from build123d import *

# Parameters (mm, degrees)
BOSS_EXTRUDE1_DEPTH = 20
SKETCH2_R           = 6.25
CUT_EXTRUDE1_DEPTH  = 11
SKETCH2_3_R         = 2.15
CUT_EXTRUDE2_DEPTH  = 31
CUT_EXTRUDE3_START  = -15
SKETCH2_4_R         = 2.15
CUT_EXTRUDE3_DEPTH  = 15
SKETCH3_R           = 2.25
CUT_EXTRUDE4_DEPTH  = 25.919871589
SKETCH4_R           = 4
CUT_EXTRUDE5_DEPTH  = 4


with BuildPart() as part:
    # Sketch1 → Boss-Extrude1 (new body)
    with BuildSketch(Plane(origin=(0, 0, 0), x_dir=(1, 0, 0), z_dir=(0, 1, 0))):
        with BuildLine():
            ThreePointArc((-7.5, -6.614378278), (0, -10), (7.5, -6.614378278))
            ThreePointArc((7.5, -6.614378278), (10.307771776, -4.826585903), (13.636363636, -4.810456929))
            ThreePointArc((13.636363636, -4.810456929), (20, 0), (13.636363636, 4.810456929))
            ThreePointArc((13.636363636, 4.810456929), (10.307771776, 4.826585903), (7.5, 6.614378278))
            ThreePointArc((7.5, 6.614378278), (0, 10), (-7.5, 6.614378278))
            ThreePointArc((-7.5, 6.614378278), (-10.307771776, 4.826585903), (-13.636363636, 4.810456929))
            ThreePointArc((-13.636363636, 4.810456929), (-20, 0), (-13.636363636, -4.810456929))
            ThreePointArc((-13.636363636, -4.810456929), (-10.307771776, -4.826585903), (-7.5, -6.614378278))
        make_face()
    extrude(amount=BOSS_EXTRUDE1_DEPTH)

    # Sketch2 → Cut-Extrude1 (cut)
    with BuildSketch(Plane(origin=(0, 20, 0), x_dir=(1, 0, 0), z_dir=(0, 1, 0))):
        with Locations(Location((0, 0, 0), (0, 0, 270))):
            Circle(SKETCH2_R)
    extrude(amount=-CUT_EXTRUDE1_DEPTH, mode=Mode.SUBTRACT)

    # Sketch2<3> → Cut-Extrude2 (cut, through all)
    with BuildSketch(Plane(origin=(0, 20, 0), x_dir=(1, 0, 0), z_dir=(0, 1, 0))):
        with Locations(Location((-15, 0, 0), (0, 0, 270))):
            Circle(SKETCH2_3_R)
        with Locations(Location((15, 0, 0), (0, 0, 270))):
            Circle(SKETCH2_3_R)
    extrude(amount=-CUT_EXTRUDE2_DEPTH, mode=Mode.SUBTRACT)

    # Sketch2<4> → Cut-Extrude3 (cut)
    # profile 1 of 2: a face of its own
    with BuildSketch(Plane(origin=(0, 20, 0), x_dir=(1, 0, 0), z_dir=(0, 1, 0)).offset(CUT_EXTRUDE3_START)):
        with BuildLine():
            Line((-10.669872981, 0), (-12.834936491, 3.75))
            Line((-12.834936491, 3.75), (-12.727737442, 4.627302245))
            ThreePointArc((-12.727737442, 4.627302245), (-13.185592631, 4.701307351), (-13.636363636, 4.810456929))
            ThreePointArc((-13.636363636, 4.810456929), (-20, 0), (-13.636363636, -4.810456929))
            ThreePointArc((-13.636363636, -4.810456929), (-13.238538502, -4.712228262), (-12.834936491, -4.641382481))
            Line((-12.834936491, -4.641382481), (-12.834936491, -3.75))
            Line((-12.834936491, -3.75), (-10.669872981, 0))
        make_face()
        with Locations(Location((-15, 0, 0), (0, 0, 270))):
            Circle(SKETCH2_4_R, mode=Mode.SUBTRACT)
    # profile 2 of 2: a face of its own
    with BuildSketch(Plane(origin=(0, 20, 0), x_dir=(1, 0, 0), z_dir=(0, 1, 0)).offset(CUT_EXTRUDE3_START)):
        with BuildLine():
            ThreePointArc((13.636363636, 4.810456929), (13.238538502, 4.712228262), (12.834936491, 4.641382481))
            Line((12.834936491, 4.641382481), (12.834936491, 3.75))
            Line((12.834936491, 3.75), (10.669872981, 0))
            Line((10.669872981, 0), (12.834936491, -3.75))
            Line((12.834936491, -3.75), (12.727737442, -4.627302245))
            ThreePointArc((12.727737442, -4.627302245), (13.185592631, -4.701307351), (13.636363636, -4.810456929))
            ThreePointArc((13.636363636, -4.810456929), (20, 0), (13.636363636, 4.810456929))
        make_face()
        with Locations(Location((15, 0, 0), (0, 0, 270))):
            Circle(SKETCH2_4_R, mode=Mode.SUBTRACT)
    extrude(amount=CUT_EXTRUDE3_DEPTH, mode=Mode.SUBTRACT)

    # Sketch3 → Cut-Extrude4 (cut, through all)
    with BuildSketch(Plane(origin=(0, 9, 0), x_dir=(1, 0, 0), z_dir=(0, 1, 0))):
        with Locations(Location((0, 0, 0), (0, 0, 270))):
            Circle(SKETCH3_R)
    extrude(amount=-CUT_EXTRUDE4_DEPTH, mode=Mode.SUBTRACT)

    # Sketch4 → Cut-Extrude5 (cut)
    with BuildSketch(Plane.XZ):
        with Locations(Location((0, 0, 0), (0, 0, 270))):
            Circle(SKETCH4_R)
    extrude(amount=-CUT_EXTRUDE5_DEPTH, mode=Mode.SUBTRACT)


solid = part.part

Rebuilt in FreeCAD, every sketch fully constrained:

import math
import FreeCAD as App
import Part
import Sketcher
from FreeCAD import Vector
Q = App.Units.Quantity

doc = App.newDocument("Part")
body = doc.addObject("PartDesign::Body", "Body")

# Sketch on XZ plane
sketch1 = doc.addObject("Sketcher::SketchObject", "Sketch")
body.addObject(sketch1)
sketch1.AttachmentSupport = (doc.XZ_Plane, [""])
sketch1.MapMode = "FlatFace"
sketch1.addGeometry([
    Part.ArcOfCircle(Part.Circle(Vector(0, 0, 0), Vector(0, 0, 1), 10), math.radians(41), math.radians(139)),  # 0
    Part.ArcOfCircle(Part.Circle(Vector(12, 11, 0), Vector(0, 0, 1), 6), math.radians(-139), math.radians(-74)),  # 1
    Part.ArcOfCircle(Part.Circle(Vector(15, 0, 0), Vector(0, 0, 1), 5), math.radians(-106), math.radians(106)),  # 2
    Part.ArcOfCircle(Part.Circle(Vector(12, -11, 0), Vector(0, 0, 1), 6), math.radians(74), math.radians(139)),  # 3
    Part.ArcOfCircle(Part.Circle(Vector(0, 0, 0), Vector(0, 0, 1), 10), math.radians(-139), math.radians(-41)),  # 4
    Part.ArcOfCircle(Part.Circle(Vector(-12, -11, 0), Vector(0, 0, 1), 6), math.radians(41), math.radians(106)),  # 5
    Part.ArcOfCircle(Part.Circle(Vector(-15, 0, 0), Vector(0, 0, 1), 5), math.radians(74), math.radians(286)),  # 6
    Part.ArcOfCircle(Part.Circle(Vector(-12, 11, 0), Vector(0, 0, 1), 6), math.radians(-106), math.radians(-41)),  # 7
], False)
sketch1.addConstraint([
    Sketcher.Constraint("Tangent", 0, 1, 1, 1),
    Sketcher.Constraint("Tangent", 1, 2, 2, 2),
    Sketcher.Constraint("Tangent", 2, 1, 3, 1),
    Sketcher.Constraint("Tangent", 3, 2, 4, 2),
    Sketcher.Constraint("Tangent", 4, 1, 5, 1),
    Sketcher.Constraint("Tangent", 5, 2, 6, 2),
    Sketcher.Constraint("Tangent", 6, 1, 7, 1),
    Sketcher.Constraint("Tangent", 7, 2, 0, 2),
    Sketcher.Constraint("Coincident", 0, 3, -1, 1),
    Sketcher.Constraint("Coincident", 4, 3, -1, 1),
    Sketcher.Constraint("Equal", 1, 3),
    Sketcher.Constraint("Equal", 0, 4),
    Sketcher.Constraint("Equal", 3, 5),
    Sketcher.Constraint("Equal", 2, 6),
    Sketcher.Constraint("Equal", 5, 7),
    Sketcher.Constraint("Symmetric", 2, 3, 6, 3, -1, 1),
    Sketcher.Constraint("PointOnObject", 2, 3, -1),
    Sketcher.Constraint("Radius", 0, Q("10 mm")),
    Sketcher.Constraint("Radius", 1, Q("6 mm")),
    Sketcher.Constraint("Radius", 2, Q("5 mm")),
    Sketcher.Constraint("DistanceX", -1, 1, 1, 3, Q("12 mm")),
])
pad1 = doc.addObject("PartDesign::Pad", "Pad")
body.addObject(pad1)
pad1.Profile = sketch1
pad1.Length = 20
pad1.Reversed = True

# Sketch on XZ plane
sketch2 = doc.addObject("Sketcher::SketchObject", "Sketch001")
body.addObject(sketch2)
sketch2.AttachmentSupport = (doc.XZ_Plane, [""])
sketch2.MapMode = "FlatFace"
sketch2.AttachmentOffset = App.Placement(Vector(0, 0, -20), App.Rotation())
sketch2.addGeometry(Part.Circle(Vector(0, 0, 0), Vector(0, 0, 1), 6), False)
sketch2.addConstraint([
    Sketcher.Constraint("Coincident", 0, 3, -1, 1),
    Sketcher.Constraint("Diameter", 0, Q("12.5 mm")),
])
pocket1 = doc.addObject("PartDesign::Pocket", "Pocket")
body.addObject(pocket1)
pocket1.Profile = sketch2
pocket1.Length = 11
pocket1.Reversed = True

# Sketch on XZ plane
sketch3 = doc.addObject("Sketcher::SketchObject", "Sketch002")
body.addObject(sketch3)
sketch3.AttachmentSupport = (doc.XZ_Plane, [""])
sketch3.MapMode = "FlatFace"
sketch3.AttachmentOffset = App.Placement(Vector(0, 0, -20), App.Rotation())
sketch3.addGeometry([
    Part.Circle(Vector(-15, 0, 0), Vector(0, 0, 1), 2.1),
    Part.Circle(Vector(15, 0, 0), Vector(0, 0, 1), 2.1),
], False)
sketch3.addConstraint([
    Sketcher.Constraint("Equal", 0, 1),
    Sketcher.Constraint("Symmetric", 0, 3, 1, 3, -1, 1),
    Sketcher.Constraint("PointOnObject", 0, 3, -1),
    Sketcher.Constraint("Diameter", 0, Q("4.3 mm")),
    Sketcher.Constraint("DistanceX", 0, 3, -1, 1, Q("15 mm")),
])
pocket2 = doc.addObject("PartDesign::Pocket", "Pocket001")
body.addObject(pocket2)
pocket2.Profile = sketch3
pocket2.Type = "ThroughAll"
pocket2.Reversed = True

# Sketch on XZ plane
sketch4 = doc.addObject("Sketcher::SketchObject", "Sketch003")
body.addObject(sketch4)
sketch4.AttachmentSupport = (doc.XZ_Plane, [""])
sketch4.MapMode = "FlatFace"
sketch4.AttachmentOffset = App.Placement(Vector(0, 0, -5), App.Rotation())
sketch4.addGeometry([
    Part.LineSegment(Vector(-10.7, 0, 0), Vector(-12.8, -3.8, 0)),  # 0
    Part.LineSegment(Vector(-12.8, -3.8, 0), Vector(-12.7, -4.6, 0)),  # 1
    Part.ArcOfCircle(Part.Circle(Vector(-12, -10.6, 0), Vector(0, 0, 1), 6), math.radians(96.97), math.radians(105.83)),  # 2
    Part.ArcOfCircle(Part.Circle(Vector(-15, 0, 0), Vector(0, 0, 1), 5), math.radians(74), math.radians(286)),  # 3
    Part.ArcOfCircle(Part.Circle(Vector(-12, 10.6, 0), Vector(0, 0, 1), 6), math.radians(-105.83), math.radians(-98)),  # 4
    Part.LineSegment(Vector(-12.8, 4.6, 0), Vector(-12.8, 3.8, 0)),  # 5
    Part.LineSegment(Vector(-12.8, 3.8, 0), Vector(-10.7, 0, 0)),  # 6
    Part.Circle(Vector(-15, 0, 0), Vector(0, 0, 1), 2.1),  # 7
    Part.ArcOfCircle(Part.Circle(Vector(12, -10.6, 0), Vector(0, 0, 1), 6), math.radians(74.17), math.radians(82)),  # 8
    Part.LineSegment(Vector(12.8, -4.6, 0), Vector(12.8, -3.8, 0)),  # 9
    Part.LineSegment(Vector(12.8, -3.8, 0), Vector(10.7, 0, 0)),  # 10
    Part.LineSegment(Vector(10.7, 0, 0), Vector(12.8, 3.8, 0)),  # 11
    Part.LineSegment(Vector(12.8, 3.8, 0), Vector(12.7, 4.6, 0)),  # 12
    Part.ArcOfCircle(Part.Circle(Vector(12, 10.6, 0), Vector(0, 0, 1), 6), math.radians(-83.03), math.radians(-74.17)),  # 13
    Part.ArcOfCircle(Part.Circle(Vector(15, 0, 0), Vector(0, 0, 1), 5), math.radians(-106), math.radians(106)),  # 14
    Part.Circle(Vector(15, 0, 0), Vector(0, 0, 1), 2.1),  # 15
], False)
sketch4.addConstraint([
    Sketcher.Constraint("Coincident", 0, 2, 1, 1),
    Sketcher.Constraint("Coincident", 1, 2, 2, 1),
    Sketcher.Constraint("Tangent", 2, 2, 3, 2),
    Sketcher.Constraint("Tangent", 3, 1, 4, 1),
    Sketcher.Constraint("Coincident", 4, 2, 5, 1),
    Sketcher.Constraint("Coincident", 5, 2, 6, 1),
    Sketcher.Constraint("Coincident", 6, 2, 0, 1),
    Sketcher.Constraint("Coincident", 8, 2, 9, 1),
    Sketcher.Constraint("Coincident", 9, 2, 10, 1),
    Sketcher.Constraint("Coincident", 10, 2, 11, 1),
    Sketcher.Constraint("Coincident", 11, 2, 12, 1),
    Sketcher.Constraint("Coincident", 12, 2, 13, 1),
    Sketcher.Constraint("Tangent", 13, 2, 14, 2),
    Sketcher.Constraint("Tangent", 14, 1, 8, 1),
    Sketcher.Constraint("Vertical", 5),
    Sketcher.Constraint("Vertical", 9),
    Sketcher.Constraint("Coincident", 7, 3, 3, 3),
    Sketcher.Constraint("Coincident", 15, 3, 14, 3),
    Sketcher.Constraint("Equal", 2, 4),
    Sketcher.Constraint("Equal", 4, 8),
    Sketcher.Constraint("Equal", 8, 13),
    Sketcher.Constraint("Equal", 3, 14),
    Sketcher.Constraint("Equal", 7, 15),
    Sketcher.Constraint("Symmetric", 4, 3, 8, 3, -1, 1),
    Sketcher.Constraint("Symmetric", 2, 3, 13, 3, -1, 1),
    Sketcher.Constraint("Symmetric", 5, 2, 9, 2, -1, 1),
    Sketcher.Constraint("Symmetric", 6, 2, 10, 2, -1, 1),
    Sketcher.Constraint("Symmetric", 0, 2, 11, 2, -1, 1),
    Sketcher.Constraint("Symmetric", 2, 3, 8, 3, -2),
    Sketcher.Constraint("Symmetric", 0, 2, 9, 2, -2),
    Sketcher.Constraint("PointOnObject", 6, 2, -1),
    Sketcher.Constraint("Parallel", 1, 12),
    Sketcher.Constraint("Radius", 2, Q("6 mm")),
    Sketcher.Constraint("Radius", 3, Q("5 mm")),
    Sketcher.Constraint("Diameter", 7, Q("4.3 mm")),
    Sketcher.Constraint("Angle", 0, Q("-120 deg")),
    Sketcher.Constraint("DistanceX", 2, 3, -1, 1, Q("12 mm")),
    Sketcher.Constraint("DistanceX", 3, 3, -1, 1, Q("15 mm")),
    Sketcher.Constraint("DistanceY", 9, 2, 11, 2, Q("7.5 mm")),
    Sketcher.Constraint("DistanceX", 0, 2, 1, 2, Q("0.107199 mm")),
    Sketcher.Constraint("DistanceY", 5, 2, 5, 1, Q("0.891382 mm")),
])
pocket3 = doc.addObject("PartDesign::Pocket", "Pocket002")
body.addObject(pocket3)
pocket3.Profile = sketch4
pocket3.Length = 15

# Sketch on XZ plane
sketch5 = doc.addObject("Sketcher::SketchObject", "Sketch004")
body.addObject(sketch5)
sketch5.AttachmentSupport = (doc.XZ_Plane, [""])
sketch5.MapMode = "FlatFace"
sketch5.AttachmentOffset = App.Placement(Vector(0, 0, -9), App.Rotation())
sketch5.addGeometry(Part.Circle(Vector(0, 0, 0), Vector(0, 0, 1), 2.2), False)
sketch5.addConstraint([
    Sketcher.Constraint("Coincident", 0, 3, -1, 1),
    Sketcher.Constraint("Diameter", 0, Q("4.5 mm")),
])
pocket4 = doc.addObject("PartDesign::Pocket", "Pocket003")
body.addObject(pocket4)
pocket4.Profile = sketch5
pocket4.Type = "ThroughAll"
pocket4.Reversed = True

# Sketch on XZ plane
sketch6 = doc.addObject("Sketcher::SketchObject", "Sketch005")
body.addObject(sketch6)
sketch6.AttachmentSupport = (doc.XZ_Plane, [""])
sketch6.MapMode = "FlatFace"
sketch6.addGeometry(Part.Circle(Vector(0, 0, 0), Vector(0, 0, 1), 4), False)
sketch6.addConstraint([
    Sketcher.Constraint("Coincident", 0, 3, -1, 1),
    Sketcher.Constraint("Diameter", 0, Q("8 mm")),
])
pocket5 = doc.addObject("PartDesign::Pocket", "Pocket004")
body.addObject(pocket5)
pocket5.Profile = sketch6
pocket5.Length = 4

doc.recompute()
